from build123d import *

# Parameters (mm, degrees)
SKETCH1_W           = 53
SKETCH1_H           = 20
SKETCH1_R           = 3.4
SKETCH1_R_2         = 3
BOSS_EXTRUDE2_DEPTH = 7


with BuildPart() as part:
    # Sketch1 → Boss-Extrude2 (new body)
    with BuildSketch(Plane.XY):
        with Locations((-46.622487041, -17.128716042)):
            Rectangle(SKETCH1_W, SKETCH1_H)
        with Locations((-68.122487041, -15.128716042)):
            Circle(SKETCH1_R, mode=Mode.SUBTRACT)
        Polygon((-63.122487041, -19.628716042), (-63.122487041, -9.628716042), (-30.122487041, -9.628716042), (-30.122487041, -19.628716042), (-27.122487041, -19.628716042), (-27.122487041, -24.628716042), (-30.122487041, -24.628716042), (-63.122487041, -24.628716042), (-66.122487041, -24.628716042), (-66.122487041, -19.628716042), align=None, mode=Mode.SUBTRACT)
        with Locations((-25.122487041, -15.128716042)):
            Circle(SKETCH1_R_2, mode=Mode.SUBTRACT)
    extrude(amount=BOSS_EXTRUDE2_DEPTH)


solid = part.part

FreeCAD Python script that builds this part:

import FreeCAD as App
import Part
import Sketcher
from FreeCAD import Vector


def add_polygon(sketch, points):
    """Adds a closed chain of lines whose ends are joined by coincident constraints."""
    first, n = sketch.GeometryCount, len(points)
    for a, b in zip(points, points[1:] + points[:1]):
        sketch.addGeometry(Part.LineSegment(App.Vector(*a, 0), App.Vector(*b, 0)), False)
    for i in range(n):
        sketch.addConstraint(Sketcher.Constraint("Coincident", first + i, 2, first + (i + 1) % n, 1))

doc = App.newDocument("Part")
params = doc.addObject("Spreadsheet::Sheet", "Params")
for row, (alias, value) in enumerate([
    ("sketch1_diameter", "6 mm"),
    ("sketch1_diameter2", "6.8 mm"),
    ("sketch1_width", "53 mm"),
    ("sketch1_width2", "3 mm"),
    ("sketch1_width3", "33 mm"),
    ("pad1_length", "7 mm"),
], start=1):
    params.set(f"A{row}", alias)
    params.set(f"B{row}", "=" + value)
    params.setAlias(f"B{row}", alias)

body = doc.addObject("PartDesign::Body", "Body")

sketch1 = doc.addObject("Sketcher::SketchObject", "Sketch")
body.addObject(sketch1)
sketch1.AttachmentSupport = (doc.XY_Plane, [""])
sketch1.MapMode = "FlatFace"
add_polygon(sketch1, [(-73.122487, -7.128716), (-73.122487, -27.128716), (-20.122487, -27.128716), (-20.122487, -7.128716)])
sketch1.addGeometry(Part.Circle(Vector(-68.122487, -15.128716, 0), Vector(0, 0, 1), 3.4), False)
add_polygon(sketch1, [(-66.122487, -19.628716), (-63.122487, -19.628716), (-63.122487, -9.628716), (-30.122487, -9.628716), (-30.122487, -19.628716), (-27.122487, -19.628716), (-27.122487, -24.628716), (-66.122487, -24.628716)])
sketch1.addGeometry(Part.Circle(Vector(-25.122487, -15.128716, 0), Vector(0, 0, 1), 3), False)
sketch1.addConstraint([
    Sketcher.Constraint("Vertical", 0),
    Sketcher.Constraint("Horizontal", 1),
    Sketcher.Constraint("Vertical", 2),
    Sketcher.Constraint("Horizontal", 3),
    Sketcher.Constraint("Horizontal", 5),
    Sketcher.Constraint("Vertical", 6),
    Sketcher.Constraint("Horizontal", 7),
    Sketcher.Constraint("Vertical", 8),
    Sketcher.Constraint("Horizontal", 9),
    Sketcher.Constraint("Vertical", 10),
    Sketcher.Constraint("Horizontal", 11),
    Sketcher.Constraint("Vertical", 12),
    Sketcher.Constraint("Horizontal", 4, 3, 13, 3),
    Sketcher.Constraint("Horizontal", 5, 2, 8, 2),
    Sketcher.Constraint("Equal", 5, 9),
    Sketcher.Constraint("Diameter", 13, 6.0),
    Sketcher.Constraint("Diameter", 4, 6.8),
    Sketcher.Constraint("DistanceX", 1, 1, 1, 2, 53.0),
    Sketcher.Constraint("DistanceX", 5, 1, 5, 2, 3.0),
    Sketcher.Constraint("DistanceX", 7, 1, 7, 2, 33.0),
    Sketcher.Constraint("DistanceY", 0, 2, 0, 1, 20.0),
    Sketcher.Constraint("DistanceY", 6, 1, 6, 2, 10.0),
    Sketcher.Constraint("DistanceY", 10, 2, 10, 1, 5.0),
    Sketcher.Constraint("DistanceX", 4, 3, 13, 3, 43.0),
    Sketcher.Constraint("DistanceX", 0, 2, 4, 3, 5.0),
    Sketcher.Constraint("DistanceY", 0, 2, 4, 3, 12.0),
    Sketcher.Constraint("DistanceX", 4, 3, 5, 2, 5.0),
    Sketcher.Constraint("DistanceY", 5, 2, 4, 3, 4.5),
    Sketcher.Constraint("DistanceX", 4, 3, -1, 1, 68.122487),
    Sketcher.Constraint("DistanceY", 4, 3, -1, 1, 15.128716),
])
sketch1.setExpression("Constraints[27]", "Params.sketch1_diameter")
sketch1.setExpression("Constraints[28]", "Params.sketch1_diameter2")
sketch1.setExpression("Constraints[29]", "Params.sketch1_width")
sketch1.setExpression("Constraints[30]", "Params.sketch1_width2")
sketch1.setExpression("Constraints[31]", "Params.sketch1_width3")
pad1 = doc.addObject("PartDesign::Pad", "Pad")
body.addObject(pad1)
pad1.Profile = sketch1
pad1.setExpression("Length", "Params.pad1_length")

doc.recompute()
